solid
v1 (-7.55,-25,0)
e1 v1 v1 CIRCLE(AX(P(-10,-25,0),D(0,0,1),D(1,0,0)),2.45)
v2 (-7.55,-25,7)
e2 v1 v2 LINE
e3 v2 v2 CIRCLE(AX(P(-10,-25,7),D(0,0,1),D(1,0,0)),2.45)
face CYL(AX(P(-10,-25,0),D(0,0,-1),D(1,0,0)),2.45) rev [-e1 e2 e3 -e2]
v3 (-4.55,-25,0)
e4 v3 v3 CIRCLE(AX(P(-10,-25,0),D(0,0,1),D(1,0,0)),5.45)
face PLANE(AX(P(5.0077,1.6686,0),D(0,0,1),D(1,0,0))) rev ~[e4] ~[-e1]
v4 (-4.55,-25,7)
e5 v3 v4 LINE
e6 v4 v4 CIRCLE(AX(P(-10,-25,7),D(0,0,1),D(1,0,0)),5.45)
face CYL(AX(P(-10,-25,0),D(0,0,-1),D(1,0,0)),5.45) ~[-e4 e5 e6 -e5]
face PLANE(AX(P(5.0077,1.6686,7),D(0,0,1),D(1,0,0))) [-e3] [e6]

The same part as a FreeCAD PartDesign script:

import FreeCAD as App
import Part
import Sketcher
from FreeCAD import Vector
Q = App.Units.Quantity

doc = App.newDocument("Part")
body = doc.addObject("PartDesign::Body", "Body")

sketch1 = doc.addObject("Sketcher::SketchObject", "Sketch")
body.addObject(sketch1)
sketch1.AttachmentSupport = (doc.XY_Plane, [""])
sketch1.MapMode = "FlatFace"
sketch1.addGeometry([
    Part.Circle(Vector(-10, -25, 0), Vector(0, 0, 1), 5.45),
    Part.Circle(Vector(-10, -25, 0), Vector(0, 0, 1), 2.45),
], False)
sketch1.addConstraint([
    Sketcher.Constraint("Coincident", 1, 3, 0, 3),
    Sketcher.Constraint("Diameter", 0, Q("10.9 mm")),
    Sketcher.Constraint("Diameter", 1, Q("4.9 mm")),
    Sketcher.Constraint("DistanceX", 0, 3, -1, 1, Q("10 mm")),
    Sketcher.Constraint("DistanceY", 0, 3, -1, 1, Q("25 mm")),
])
pad1 = doc.addObject("PartDesign::Pad", "Pad")
body.addObject(pad1)
pad1.Profile = sketch1
pad1.Length = 7

doc.recompute()
